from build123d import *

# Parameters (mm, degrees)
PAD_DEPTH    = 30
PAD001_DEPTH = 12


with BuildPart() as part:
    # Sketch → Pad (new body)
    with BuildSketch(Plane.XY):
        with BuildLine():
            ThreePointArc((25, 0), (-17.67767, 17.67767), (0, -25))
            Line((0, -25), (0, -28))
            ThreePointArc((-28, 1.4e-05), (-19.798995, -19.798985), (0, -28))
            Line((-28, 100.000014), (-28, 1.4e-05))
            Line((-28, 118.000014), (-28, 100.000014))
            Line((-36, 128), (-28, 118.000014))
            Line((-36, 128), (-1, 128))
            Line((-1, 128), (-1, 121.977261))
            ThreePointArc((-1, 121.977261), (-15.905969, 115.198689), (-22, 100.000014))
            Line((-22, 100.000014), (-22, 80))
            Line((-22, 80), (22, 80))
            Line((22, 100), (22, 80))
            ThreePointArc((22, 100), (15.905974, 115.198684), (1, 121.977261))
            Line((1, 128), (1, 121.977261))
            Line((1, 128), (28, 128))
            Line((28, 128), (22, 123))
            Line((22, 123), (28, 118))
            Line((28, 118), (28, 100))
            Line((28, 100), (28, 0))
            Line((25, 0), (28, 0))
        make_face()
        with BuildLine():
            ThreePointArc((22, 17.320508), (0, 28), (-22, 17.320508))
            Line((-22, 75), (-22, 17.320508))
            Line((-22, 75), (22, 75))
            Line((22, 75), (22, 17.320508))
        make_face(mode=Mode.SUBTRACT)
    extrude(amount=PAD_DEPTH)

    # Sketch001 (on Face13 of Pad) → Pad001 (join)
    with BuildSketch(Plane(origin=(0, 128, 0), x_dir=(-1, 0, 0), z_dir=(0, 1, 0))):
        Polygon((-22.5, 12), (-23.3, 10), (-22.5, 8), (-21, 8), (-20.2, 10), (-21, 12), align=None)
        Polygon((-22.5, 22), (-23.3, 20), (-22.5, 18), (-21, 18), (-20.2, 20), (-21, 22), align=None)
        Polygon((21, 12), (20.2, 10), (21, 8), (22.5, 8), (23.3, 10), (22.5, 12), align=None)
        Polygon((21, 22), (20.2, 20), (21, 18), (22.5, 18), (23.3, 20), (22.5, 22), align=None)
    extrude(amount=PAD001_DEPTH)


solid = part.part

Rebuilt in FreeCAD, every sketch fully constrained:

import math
import FreeCAD as App
import Part
import Sketcher
Q = App.Units.Quantity

doc = App.newDocument("Part")
params = doc.addObject("Spreadsheet::Sheet", "Params")
for row, (alias, value) in enumerate([
    ("sketch1_radius", "25 mm"),
    ("sketch1_radius2", "22 mm"),
    ("sketch1_radius3", "28 mm"),
    ("sketch1_width", "27 mm"),
    ("sketch1_width2", "35 mm"),
    ("pad1_length", "30 mm"),
    ("sketch2_width", "1.5 mm"),
    ("pad2_length", "12 mm"),
], start=1):
    params.set(f"A{row}", alias)
    params.set(f"B{row}", "=" + value)
    params.setAlias(f"B{row}", alias)

body = doc.addObject("PartDesign::Body", "Body")

# Sketch on XY plane
sketch1 = body.newObject("Sketcher::SketchObject", "Sketch")
sketch1.AttachmentSupport = (doc.getObject("XY_Plane"), [""])
sketch1.MapMode = "FlatFace"
sketch1.addGeometry(Part.ArcOfCircle(Part.Circle(App.Vector(0, 0, 0), App.Vector(0, 0, 1), 25), math.radians(-0.000001), math.radians(270.000001)), False)
sketch1.addGeometry(Part.LineSegment(App.Vector(25, 0, 0), App.Vector(28, 0, 0)), False)
sketch1.addGeometry(Part.LineSegment(App.Vector(28, 0, 0), App.Vector(28, 118, 0)), False)
sketch1.addGeometry(Part.LineSegment(App.Vector(28, 118, 0), App.Vector(22, 123, 0)), False)
sketch1.addGeometry(Part.LineSegment(App.Vector(22, 123, 0), App.Vector(28, 128, 0)), False)
sketch1.addGeometry(Part.LineSegment(App.Vector(28, 128, 0), App.Vector(1, 128, 0)), False)
sketch1.addGeometry(Part.LineSegment(App.Vector(1, 128, 0), App.Vector(1, 121.977261, 0)), False)
sketch1.addGeometry(Part.ArcOfCircle(Part.Circle(App.Vector(0, 100, 0), App.Vector(0, 0, 1), 22), math.radians(-0.000001), math.radians(87.394749)), False)
sketch1.addGeometry(Part.LineSegment(App.Vector(22, 100, 0), App.Vector(22, 80, 0)), False)
sketch1.addGeometry(Part.LineSegment(App.Vector(22, 80, 0), App.Vector(-22, 80, 0)), False)
sketch1.addGeometry(Part.LineSegment(App.Vector(-22, 80, 0), App.Vector(-22, 100.000014, 0)), False)
sketch1.addGeometry(Part.ArcOfCircle(Part.Circle(App.Vector(0, 100, 0), App.Vector(0, 0, 1), 22), math.radians(92.605252), math.radians(179.999963)), False)
sketch1.addGeometry(Part.LineSegment(App.Vector(-1, 121.977261, 0), App.Vector(-1, 128, 0)), False)
sketch1.addGeometry(Part.LineSegment(App.Vector(-1, 128, 0), App.Vector(-36, 128, 0)), False)
sketch1.addGeometry(Part.LineSegment(App.Vector(-36, 128, 0), App.Vector(-28, 118.000014, 0)), False)
sketch1.addGeometry(Part.LineSegment(App.Vector(-28, 118.000014, 0), App.Vector(-28, 0.000014, 0)), False)
sketch1.addGeometry(Part.ArcOfCircle(Part.Circle(App.Vector(0, 0, 0), App.Vector(0, 0, 1), 28), math.radians(179.99997), math.radians(270.000001)), False)
sketch1.addGeometry(Part.LineSegment(App.Vector(0, -28, 0), App.Vector(0, -25, 0)), False)
sketch1.addGeometry(Part.ArcOfCircle(Part.Circle(App.Vector(0, 0, 0), App.Vector(0, 0, 1), 28), math.radians(38.21321), math.radians(141.78679)), False)
sketch1.addGeometry(Part.LineSegment(App.Vector(-22, 17.320508, 0), App.Vector(-22, 75, 0)), False)
sketch1.addGeometry(Part.LineSegment(App.Vector(-22, 75, 0), App.Vector(22, 75, 0)), False)
sketch1.addGeometry(Part.LineSegment(App.Vector(22, 75, 0), App.Vector(22, 17.320508, 0)), False)
sketch1.addConstraint(Sketcher.Constraint("Coincident", 0, 1, 1, 1))
sketch1.addConstraint(Sketcher.Constraint("Coincident", 1, 2, 2, 1))
sketch1.addConstraint(Sketcher.Constraint("Coincident", 2, 2, 3, 1))
sketch1.addConstraint(Sketcher.Constraint("Coincident", 3, 2, 4, 1))
sketch1.addConstraint(Sketcher.Constraint("Coincident", 4, 2, 5, 1))
sketch1.addConstraint(Sketcher.Constraint("Coincident", 5, 2, 6, 1))
sketch1.addConstraint(Sketcher.Constraint("Coincident", 6, 2, 7, 2))
sketch1.addConstraint(Sketcher.Constraint("Tangent", 7, 1, 8, 1))
sketch1.addConstraint(Sketcher.Constraint("Coincident", 8, 2, 9, 1))
sketch1.addConstraint(Sketcher.Constraint("Coincident", 9, 2, 10, 1))
sketch1.addConstraint(Sketcher.Constraint("Tangent", 10, 2, 11, 2))
sketch1.addConstraint(Sketcher.Constraint("Coincident", 11, 1, 12, 1))
sketch1.addConstraint(Sketcher.Constraint("Coincident", 12, 2, 13, 1))
sketch1.addConstraint(Sketcher.Constraint("Coincident", 13, 2, 14, 1))
sketch1.addConstraint(Sketcher.Constraint("Coincident", 14, 2, 15, 1))
sketch1.addConstraint(Sketcher.Constraint("Tangent", 15, 2, 16, 1))
sketch1.addConstraint(Sketcher.Constraint("Coincident", 16, 2, 17, 1))
sketch1.addConstraint(Sketcher.Constraint("Coincident", 17, 2, 0, 2))
sketch1.addConstraint(Sketcher.Constraint("Coincident", 18, 2, 19, 1))
sketch1.addConstraint(Sketcher.Constraint("Coincident", 19, 2, 20, 1))
sketch1.addConstraint(Sketcher.Constraint("Coincident", 20, 2, 21, 1))
sketch1.addConstraint(Sketcher.Constraint("Coincident", 21, 2, 18, 1))
sketch1.addConstraint(Sketcher.Constraint("Horizontal", 1))
sketch1.addConstraint(Sketcher.Constraint("Vertical", 2))
sketch1.addConstraint(Sketcher.Constraint("Horizontal", 5))
sketch1.addConstraint(Sketcher.Constraint("Vertical", 6))
sketch1.addConstraint(Sketcher.Constraint("Vertical", 8))
sketch1.addConstraint(Sketcher.Constraint("Horizontal", 9))
sketch1.addConstraint(Sketcher.Constraint("Vertical", 10))
sketch1.addConstraint(Sketcher.Constraint("Vertical", 12))
sketch1.addConstraint(Sketcher.Constraint("Horizontal", 13))
sketch1.addConstraint(Sketcher.Constraint("Vertical", 15))
sketch1.addConstraint(Sketcher.Constraint("Vertical", 17))
sketch1.addConstraint(Sketcher.Constraint("Vertical", 19))
sketch1.addConstraint(Sketcher.Constraint("Horizontal", 20))
sketch1.addConstraint(Sketcher.Constraint("Vertical", 21))
sketch1.addConstraint(Sketcher.Constraint("Coincident", 0, 3, -1, 1))
sketch1.addConstraint(Sketcher.Constraint("Coincident", 16, 3, -1, 1))
sketch1.addConstraint(Sketcher.Constraint("Coincident", 18, 3, -1, 1))
sketch1.addConstraint(Sketcher.Constraint("Coincident", 11, 3, 7, 3))
sketch1.addConstraint(Sketcher.Constraint("Equal", 7, 11))
sketch1.addConstraint(Sketcher.Constraint("Equal", 16, 18))
sketch1.addConstraint(Sketcher.Constraint("Symmetric", 6, 2, 11, 1, -2))
sketch1.addConstraint(Sketcher.Constraint("PointOnObject", 0, 1, -1))
sketch1.addConstraint(Sketcher.Constraint("PointOnObject", 16, 2, -2))
sketch1.addConstraint(Sketcher.Constraint("Horizontal", 5, 2, 12, 2))
sketch1.addConstraint(Sketcher.Constraint("Horizontal", 18, 2, 21, 2))
sketch1.addConstraint(Sketcher.Constraint("Vertical", 2, 2, 4, 2))
sketch1.addConstraint(Sketcher.Constraint("Vertical", 3, 2, 7, 1))
sketch1.addConstraint(Sketcher.Constraint("Vertical", 10, 2, 18, 2))
sketch1.addConstraint(Sketcher.Constraint("Equal", 2, 15))
sketch1.addConstraint(Sketcher.Constraint("Equal", 1, 17))
sketch1.addConstraint(Sketcher.Constraint("Equal", 3, 4))
sketch1.addConstraint(Sketcher.Constraint("Radius", 0, Q("25 mm")))
sketch1.addConstraint(Sketcher.Constraint("Radius", 7, Q("22 mm")))
sketch1.addConstraint(Sketcher.Constraint("Radius", 16, Q("28 mm")))
sketch1.addConstraint(Sketcher.Constraint("DistanceX", 5, 2, 5, 1, Q("27 mm")))
sketch1.addConstraint(Sketcher.Constraint("DistanceX", 13, 2, 13, 1, Q("35 mm")))
sketch1.addConstraint(Sketcher.Constraint("DistanceY", 2, 1, 2, 2, Q("118 mm")))
sketch1.addConstraint(Sketcher.Constraint("DistanceY", 8, 2, 8, 1, Q("20 mm")))
sketch1.addConstraint(Sketcher.Constraint("DistanceY", -1, 1, 7, 3, Q("100 mm")))
sketch1.addConstraint(Sketcher.Constraint("DistanceY", -1, 1, 3, 2, Q("123 mm")))
sketch1.addConstraint(Sketcher.Constraint("DistanceY", -1, 1, 19, 2, Q("75 mm")))
sketch1.setExpression("Constraints[53]", "Params.sketch1_radius")
sketch1.setExpression("Constraints[54]", "Params.sketch1_radius2")
sketch1.setExpression("Constraints[55]", "Params.sketch1_radius3")
sketch1.setExpression("Constraints[56]", "Params.sketch1_width")
sketch1.setExpression("Constraints[57]", "Params.sketch1_width2")
pad1 = body.newObject("PartDesign::Pad", "Pad")
pad1.Profile = sketch1
pad1.setExpression("Length", "Params.pad1_length")

# Sketch on XZ plane
sketch2 = body.newObject("Sketcher::SketchObject", "Sketch001")
sketch2.AttachmentSupport = (doc.getObject("XZ_Plane"), [""])
sketch2.MapMode = "FlatFace"
sketch2.AttachmentOffset = App.Placement(App.Vector(0, 0, -128), App.Rotation())
sketch2.addGeometry(Part.LineSegment(App.Vector(22.5, 12, 0), App.Vector(23.3, 10, 0)), False)
sketch2.addGeometry(Part.LineSegment(App.Vector(23.3, 10, 0), App.Vector(22.5, 8, 0)), False)
sketch2.addGeometry(Part.LineSegment(App.Vector(22.5, 8, 0), App.Vector(21, 8, 0)), False)
sketch2.addGeometry(Part.LineSegment(App.Vector(21, 8, 0), App.Vector(20.2, 10, 0)), False)
sketch2.addGeometry(Part.LineSegment(App.Vector(20.2, 10, 0), App.Vector(21, 12, 0)), False)
sketch2.addGeometry(Part.LineSegment(App.Vector(21, 12, 0), App.Vector(22.5, 12, 0)), False)
sketch2.addGeometry(Part.LineSegment(App.Vector(22.5, 22, 0), App.Vector(23.3, 20, 0)), False)
sketch2.addGeometry(Part.LineSegment(App.Vector(23.3, 20, 0), App.Vector(22.5, 18, 0)), False)
sketch2.addGeometry(Part.LineSegment(App.Vector(22.5, 18, 0), App.Vector(21, 18, 0)), False)
sketch2.addGeometry(Part.LineSegment(App.Vector(21, 18, 0), App.Vector(20.2, 20, 0)), False)
sketch2.addGeometry(Part.LineSegment(App.Vector(20.2, 20, 0), App.Vector(21, 22, 0)), False)
sketch2.addGeometry(Part.LineSegment(App.Vector(21, 22, 0), App.Vector(22.5, 22, 0)), False)
sketch2.addGeometry(Part.LineSegment(App.Vector(-21, 12, 0), App.Vector(-20.2, 10, 0)), False)
sketch2.addGeometry(Part.LineSegment(App.Vector(-20.2, 10, 0), App.Vector(-21, 8, 0)), False)
sketch2.addGeometry(Part.LineSegment(App.Vector(-21, 8, 0), App.Vector(-22.5, 8, 0)), False)
sketch2.addGeometry(Part.LineSegment(App.Vector(-22.5, 8, 0), App.Vector(-23.3, 10, 0)), False)
sketch2.addGeometry(Part.LineSegment(App.Vector(-23.3, 10, 0), App.Vector(-22.5, 12, 0)), False)
sketch2.addGeometry(Part.LineSegment(App.Vector(-22.5, 12, 0), App.Vector(-21, 12, 0)), False)
sketch2.addGeometry(Part.LineSegment(App.Vector(-21, 22, 0), App.Vector(-20.2, 20, 0)), False)
sketch2.addGeometry(Part.LineSegment(App.Vector(-20.2, 20, 0), App.Vector(-21, 18, 0)), False)
sketch2.addGeometry(Part.LineSegment(App.Vector(-21, 18, 0), App.Vector(-22.5, 18, 0)), False)
sketch2.addGeometry(Part.LineSegment(App.Vector(-22.5, 18, 0), App.Vector(-23.3, 20, 0)), False)
sketch2.addGeometry(Part.LineSegment(App.Vector(-23.3, 20, 0), App.Vector(-22.5, 22, 0)), False)
sketch2.addGeometry(Part.LineSegment(App.Vector(-22.5, 22, 0), App.Vector(-21, 22, 0)), False)
sketch2.addConstraint(Sketcher.Constraint("Coincident", 0, 2, 1, 1))
sketch2.addConstraint(Sketcher.Constraint("Coincident", 1, 2, 2, 1))
sketch2.addConstraint(Sketcher.Constraint("Coincident", 2, 2, 3, 1))
sketch2.addConstraint(Sketcher.Constraint("Coincident", 3, 2, 4, 1))
sketch2.addConstraint(Sketcher.Constraint("Coincident", 4, 2, 5, 1))
sketch2.addConstraint(Sketcher.Constraint("Coincident", 5, 2, 0, 1))
sketch2.addConstraint(Sketcher.Constraint("Coincident", 6, 2, 7, 1))
sketch2.addConstraint(Sketcher.Constraint("Coincident", 7, 2, 8, 1))
sketch2.addConstraint(Sketcher.Constraint("Coincident", 8, 2, 9, 1))
sketch2.addConstraint(Sketcher.Constraint("Coincident", 9, 2, 10, 1))
sketch2.addConstraint(Sketcher.Constraint("Coincident", 10, 2, 11, 1))
sketch2.addConstraint(Sketcher.Constraint("Coincident", 11, 2, 6, 1))
sketch2.addConstraint(Sketcher.Constraint("Coincident", 12, 2, 13, 1))
sketch2.addConstraint(Sketcher.Constraint("Coincident", 13, 2, 14, 1))
sketch2.addConstraint(Sketcher.Constraint("Coincident", 14, 2, 15, 1))
sketch2.addConstraint(Sketcher.Constraint("Coincident", 15, 2, 16, 1))
sketch2.addConstraint(Sketcher.Constraint("Coincident", 16, 2, 17, 1))
sketch2.addConstraint(Sketcher.Constraint("Coincident", 17, 2, 12, 1))
sketch2.addConstraint(Sketcher.Constraint("Coincident", 18, 2, 19, 1))
sketch2.addConstraint(Sketcher.Constraint("Coincident", 19, 2, 20, 1))
sketch2.addConstraint(Sketcher.Constraint("Coincident", 20, 2, 21, 1))
sketch2.addConstraint(Sketcher.Constraint("Coincident", 21, 2, 22, 1))
sketch2.addConstraint(Sketcher.Constraint("Coincident", 22, 2, 23, 1))
sketch2.addConstraint(Sketcher.Constraint("Coincident", 23, 2, 18, 1))
sketch2.addConstraint(Sketcher.Constraint("Horizontal", 2))
sketch2.addConstraint(Sketcher.Constraint("Horizontal", 5))
sketch2.addConstraint(Sketcher.Constraint("Horizontal", 8))
sketch2.addConstraint(Sketcher.Constraint("Horizontal", 11))
sketch2.addConstraint(Sketcher.Constraint("Horizontal", 14))
sketch2.addConstraint(Sketcher.Constraint("Horizontal", 17))
sketch2.addConstraint(Sketcher.Constraint("Horizontal", 20))
sketch2.addConstraint(Sketcher.Constraint("Horizontal", 23))
sketch2.addConstraint(Sketcher.Constraint("Symmetric", 3, 2, 12, 2, -2))
sketch2.addConstraint(Sketcher.Constraint("Symmetric", 2, 2, 13, 2, -2))
sketch2.addConstraint(Sketcher.Constraint("Symmetric", 0, 2, 15, 2, -2))
sketch2.addConstraint(Sketcher.Constraint("Symmetric", 5, 2, 16, 2, -2))
sketch2.addConstraint(Sketcher.Constraint("Symmetric", 9, 2, 18, 2, -2))
sketch2.addConstraint(Sketcher.Constraint("Symmetric", 8, 2, 19, 2, -2))
sketch2.addConstraint(Sketcher.Constraint("Symmetric", 6, 2, 21, 2, -2))
sketch2.addConstraint(Sketcher.Constraint("Symmetric", 11, 2, 22, 2, -2))
sketch2.addConstraint(Sketcher.Constraint("Parallel", 0, 3))
sketch2.addConstraint(Sketcher.Constraint("Parallel", 1, 4))
sketch2.addConstraint(Sketcher.Constraint("Parallel", 3, 6))
sketch2.addConstraint(Sketcher.Constraint("Parallel", 4, 7))
sketch2.addConstraint(Sketcher.Constraint("Parallel", 6, 9))
sketch2.addConstraint(Sketcher.Constraint("Parallel", 7, 10))
sketch2.addConstraint(Sketcher.Constraint("Parallel", 9, 12))
sketch2.addConstraint(Sketcher.Constraint("Parallel", 10, 13))
sketch2.addConstraint(Sketcher.Constraint("Parallel", 12, 15))
sketch2.addConstraint(Sketcher.Constraint("Parallel", 15, 18))
sketch2.addConstraint(Sketcher.Constraint("Parallel", 18, 21))
sketch2.addConstraint(Sketcher.Constraint("Horizontal", 0, 2, 3, 2))
sketch2.addConstraint(Sketcher.Constraint("Horizontal", 6, 2, 9, 2))
sketch2.addConstraint(Sketcher.Constraint("Vertical", 2, 2, 4, 2))
sketch2.addConstraint(Sketcher.Constraint("Vertical", 0, 2, 6, 2))
sketch2.addConstraint(Sketcher.Constraint("Vertical", 5, 2, 7, 2))
sketch2.addConstraint(Sketcher.Constraint("Vertical", 4, 2, 8, 2))
sketch2.addConstraint(Sketcher.Constraint("Vertical", 8, 2, 10, 2))
sketch2.addConstraint(Sketcher.Constraint("DistanceX", 2, 2, 2, 1, Q("1.5 mm")))
sketch2.addConstraint(Sketcher.Constraint("DistanceY", -1, 1, 0, 2, Q("10 mm")))
sketch2.addConstraint(Sketcher.Constraint("DistanceY", -1, 1, 1, 2, Q("8 mm")))
sketch2.addConstraint(Sketcher.Constraint("DistanceX", -1, 1, 2, 2, Q("21 mm")))
sketch2.addConstraint(Sketcher.Constraint("DistanceY", -1, 1, 6, 2, Q("20 mm")))
sketch2.addConstraint(Sketcher.Constraint("DistanceX", -1, 1, 0, 2, Q("23.3 mm")))
sketch2.setExpression("Constraints[58]", "Params.sketch2_width")
pad2 = body.newObject("PartDesign::Pad", "Pad001")
pad2.Profile = sketch2
pad2.setExpression("Length", "Params.pad2_length")
pad2.Reversed = True

doc.recompute()
